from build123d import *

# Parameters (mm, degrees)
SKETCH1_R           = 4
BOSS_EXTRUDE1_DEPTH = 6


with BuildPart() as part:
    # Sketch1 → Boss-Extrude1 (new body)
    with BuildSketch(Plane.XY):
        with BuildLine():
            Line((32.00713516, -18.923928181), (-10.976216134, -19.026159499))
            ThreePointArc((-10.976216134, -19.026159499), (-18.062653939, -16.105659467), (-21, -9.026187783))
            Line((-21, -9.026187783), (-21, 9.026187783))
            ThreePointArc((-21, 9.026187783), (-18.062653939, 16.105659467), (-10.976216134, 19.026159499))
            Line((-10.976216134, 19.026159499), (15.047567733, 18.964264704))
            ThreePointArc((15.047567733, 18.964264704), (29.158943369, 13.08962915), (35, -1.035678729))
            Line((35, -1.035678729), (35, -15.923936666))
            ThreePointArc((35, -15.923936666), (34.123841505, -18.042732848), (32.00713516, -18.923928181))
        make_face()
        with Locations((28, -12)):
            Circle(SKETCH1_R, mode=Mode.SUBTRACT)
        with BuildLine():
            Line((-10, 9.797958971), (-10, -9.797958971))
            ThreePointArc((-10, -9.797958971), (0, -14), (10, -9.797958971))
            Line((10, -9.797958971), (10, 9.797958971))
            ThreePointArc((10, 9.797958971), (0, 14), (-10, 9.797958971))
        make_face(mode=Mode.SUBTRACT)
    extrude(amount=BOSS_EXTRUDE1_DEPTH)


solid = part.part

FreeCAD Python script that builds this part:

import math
import FreeCAD as App
import Part
import Sketcher

V = App.Vector
Q = App.Units.Quantity

doc = App.newDocument("Part")
body = doc.addObject("PartDesign::Body", "Body")

# Sketch on XY plane
sketch1 = body.newObject("Sketcher::SketchObject", "Sketch")
sketch1.AttachmentSupport = (doc.getObject("XY_Plane"), [""])
sketch1.MapMode = "FlatFace"
sketch1.addGeometry(Part.LineSegment(V(-11, -19, 0), V(32, -18.9, 0)), False)
sketch1.addGeometry(Part.ArcOfCircle(Part.Circle(V(32, -15.9, 0), V(0, 0, 1), 3), math.radians(-90), math.radians(0)), False)
sketch1.addGeometry(Part.LineSegment(V(35, -15.9, 0), V(35, -1, 0)), False)
sketch1.addGeometry(Part.ArcOfCircle(Part.Circle(V(15, -1, 0), V(0, 0, 1), 20), math.radians(0), math.radians(90)), False)
sketch1.addGeometry(Part.LineSegment(V(15, 19, 0), V(-11, 19, 0)), False)
sketch1.addGeometry(Part.ArcOfCircle(Part.Circle(V(-11, 9, 0), V(0, 0, 1), 10), math.radians(90), math.radians(180)), False)
sketch1.addGeometry(Part.LineSegment(V(-21, 9, 0), V(-21, -9, 0)), False)
sketch1.addGeometry(Part.ArcOfCircle(Part.Circle(V(-11, -9, 0), V(0, 0, 1), 10), math.radians(-180), math.radians(-90)), False)
sketch1.addGeometry(Part.Circle(V(28, -12, 0), V(0, 0, 1), 4), False)
sketch1.addGeometry(Part.ArcOfCircle(Part.Circle(V(0, 0, 0), V(0, 0, 1), 14), math.radians(44), math.radians(136)), False)
sketch1.addGeometry(Part.LineSegment(V(10, 9.8, 0), V(10, -9.8, 0)), False)
sketch1.addGeometry(Part.ArcOfCircle(Part.Circle(V(0, 0, 0), V(0, 0, 1), 14), math.radians(-136), math.radians(-44)), False)
sketch1.addGeometry(Part.LineSegment(V(-10, -9.8, 0), V(-10, 9.8, 0)), False)
sketch1.addConstraint(Sketcher.Constraint("Tangent", 0, 2, 1, 1))
sketch1.addConstraint(Sketcher.Constraint("Tangent", 1, 2, 2, 1))
sketch1.addConstraint(Sketcher.Constraint("Tangent", 2, 2, 3, 1))
sketch1.addConstraint(Sketcher.Constraint("Tangent", 3, 2, 4, 1))
sketch1.addConstraint(Sketcher.Constraint("Tangent", 4, 2, 5, 1))
sketch1.addConstraint(Sketcher.Constraint("Tangent", 5, 2, 6, 1))
sketch1.addConstraint(Sketcher.Constraint("Tangent", 6, 2, 7, 1))
sketch1.addConstraint(Sketcher.Constraint("Tangent", 7, 2, 0, 1))
sketch1.addConstraint(Sketcher.Constraint("Coincident", 9, 1, 10, 1))
sketch1.addConstraint(Sketcher.Constraint("Coincident", 10, 2, 11, 2))
sketch1.addConstraint(Sketcher.Constraint("Coincident", 11, 1, 12, 1))
sketch1.addConstraint(Sketcher.Constraint("Coincident", 12, 2, 9, 2))
sketch1.addConstraint(Sketcher.Constraint("Vertical", 2))
sketch1.addConstraint(Sketcher.Constraint("Vertical", 6))
sketch1.addConstraint(Sketcher.Constraint("Vertical", 10))
sketch1.addConstraint(Sketcher.Constraint("Vertical", 12))
sketch1.addConstraint(Sketcher.Constraint("Coincident", 9, 3, -1, 1))
sketch1.addConstraint(Sketcher.Constraint("Coincident", 11, 3, -1, 1))
sketch1.addConstraint(Sketcher.Constraint("Equal", 5, 7))
sketch1.addConstraint(Sketcher.Constraint("Equal", 9, 11))
sketch1.addConstraint(Sketcher.Constraint("Symmetric", 4, 2, 7, 2, -1))
sketch1.addConstraint(Sketcher.Constraint("Horizontal", 10, 2, 11, 1))
sketch1.addConstraint(Sketcher.Constraint("Diameter", 8, Q("8 mm")))
sketch1.addConstraint(Sketcher.Constraint("Radius", 1, Q("3 mm")))
sketch1.addConstraint(Sketcher.Constraint("Radius", 3, Q("20 mm")))
sketch1.addConstraint(Sketcher.Constraint("Radius", 5, Q("10 mm")))
sketch1.addConstraint(Sketcher.Constraint("Radius", 9, Q("14 mm")))
sketch1.addConstraint(Sketcher.Constraint("DistanceX", -1, 1, 1, 3, Q("32 mm")))
sketch1.addConstraint(Sketcher.Constraint("DistanceX", 5, 3, -1, 1, Q("11 mm")))
sketch1.addConstraint(Sketcher.Constraint("DistanceX", -1, 1, 8, 3, Q("28 mm")))
sketch1.addConstraint(Sketcher.Constraint("DistanceY", 8, 3, -1, 1, Q("12 mm")))
sketch1.addConstraint(Sketcher.Constraint("DistanceX", -1, 1, 9, 1, Q("10 mm")))
sketch1.addConstraint(Sketcher.Constraint("DistanceY", 7, 2, 11, 1, Q("9.228201 mm")))
sketch1.addConstraint(Sketcher.Constraint("DistanceY", 2, 1, 2, 2, Q("14.888258 mm")))
pad1 = body.newObject("PartDesign::Pad", "Pad")
pad1.Profile = sketch1
pad1.Length = 6

doc.recompute()
